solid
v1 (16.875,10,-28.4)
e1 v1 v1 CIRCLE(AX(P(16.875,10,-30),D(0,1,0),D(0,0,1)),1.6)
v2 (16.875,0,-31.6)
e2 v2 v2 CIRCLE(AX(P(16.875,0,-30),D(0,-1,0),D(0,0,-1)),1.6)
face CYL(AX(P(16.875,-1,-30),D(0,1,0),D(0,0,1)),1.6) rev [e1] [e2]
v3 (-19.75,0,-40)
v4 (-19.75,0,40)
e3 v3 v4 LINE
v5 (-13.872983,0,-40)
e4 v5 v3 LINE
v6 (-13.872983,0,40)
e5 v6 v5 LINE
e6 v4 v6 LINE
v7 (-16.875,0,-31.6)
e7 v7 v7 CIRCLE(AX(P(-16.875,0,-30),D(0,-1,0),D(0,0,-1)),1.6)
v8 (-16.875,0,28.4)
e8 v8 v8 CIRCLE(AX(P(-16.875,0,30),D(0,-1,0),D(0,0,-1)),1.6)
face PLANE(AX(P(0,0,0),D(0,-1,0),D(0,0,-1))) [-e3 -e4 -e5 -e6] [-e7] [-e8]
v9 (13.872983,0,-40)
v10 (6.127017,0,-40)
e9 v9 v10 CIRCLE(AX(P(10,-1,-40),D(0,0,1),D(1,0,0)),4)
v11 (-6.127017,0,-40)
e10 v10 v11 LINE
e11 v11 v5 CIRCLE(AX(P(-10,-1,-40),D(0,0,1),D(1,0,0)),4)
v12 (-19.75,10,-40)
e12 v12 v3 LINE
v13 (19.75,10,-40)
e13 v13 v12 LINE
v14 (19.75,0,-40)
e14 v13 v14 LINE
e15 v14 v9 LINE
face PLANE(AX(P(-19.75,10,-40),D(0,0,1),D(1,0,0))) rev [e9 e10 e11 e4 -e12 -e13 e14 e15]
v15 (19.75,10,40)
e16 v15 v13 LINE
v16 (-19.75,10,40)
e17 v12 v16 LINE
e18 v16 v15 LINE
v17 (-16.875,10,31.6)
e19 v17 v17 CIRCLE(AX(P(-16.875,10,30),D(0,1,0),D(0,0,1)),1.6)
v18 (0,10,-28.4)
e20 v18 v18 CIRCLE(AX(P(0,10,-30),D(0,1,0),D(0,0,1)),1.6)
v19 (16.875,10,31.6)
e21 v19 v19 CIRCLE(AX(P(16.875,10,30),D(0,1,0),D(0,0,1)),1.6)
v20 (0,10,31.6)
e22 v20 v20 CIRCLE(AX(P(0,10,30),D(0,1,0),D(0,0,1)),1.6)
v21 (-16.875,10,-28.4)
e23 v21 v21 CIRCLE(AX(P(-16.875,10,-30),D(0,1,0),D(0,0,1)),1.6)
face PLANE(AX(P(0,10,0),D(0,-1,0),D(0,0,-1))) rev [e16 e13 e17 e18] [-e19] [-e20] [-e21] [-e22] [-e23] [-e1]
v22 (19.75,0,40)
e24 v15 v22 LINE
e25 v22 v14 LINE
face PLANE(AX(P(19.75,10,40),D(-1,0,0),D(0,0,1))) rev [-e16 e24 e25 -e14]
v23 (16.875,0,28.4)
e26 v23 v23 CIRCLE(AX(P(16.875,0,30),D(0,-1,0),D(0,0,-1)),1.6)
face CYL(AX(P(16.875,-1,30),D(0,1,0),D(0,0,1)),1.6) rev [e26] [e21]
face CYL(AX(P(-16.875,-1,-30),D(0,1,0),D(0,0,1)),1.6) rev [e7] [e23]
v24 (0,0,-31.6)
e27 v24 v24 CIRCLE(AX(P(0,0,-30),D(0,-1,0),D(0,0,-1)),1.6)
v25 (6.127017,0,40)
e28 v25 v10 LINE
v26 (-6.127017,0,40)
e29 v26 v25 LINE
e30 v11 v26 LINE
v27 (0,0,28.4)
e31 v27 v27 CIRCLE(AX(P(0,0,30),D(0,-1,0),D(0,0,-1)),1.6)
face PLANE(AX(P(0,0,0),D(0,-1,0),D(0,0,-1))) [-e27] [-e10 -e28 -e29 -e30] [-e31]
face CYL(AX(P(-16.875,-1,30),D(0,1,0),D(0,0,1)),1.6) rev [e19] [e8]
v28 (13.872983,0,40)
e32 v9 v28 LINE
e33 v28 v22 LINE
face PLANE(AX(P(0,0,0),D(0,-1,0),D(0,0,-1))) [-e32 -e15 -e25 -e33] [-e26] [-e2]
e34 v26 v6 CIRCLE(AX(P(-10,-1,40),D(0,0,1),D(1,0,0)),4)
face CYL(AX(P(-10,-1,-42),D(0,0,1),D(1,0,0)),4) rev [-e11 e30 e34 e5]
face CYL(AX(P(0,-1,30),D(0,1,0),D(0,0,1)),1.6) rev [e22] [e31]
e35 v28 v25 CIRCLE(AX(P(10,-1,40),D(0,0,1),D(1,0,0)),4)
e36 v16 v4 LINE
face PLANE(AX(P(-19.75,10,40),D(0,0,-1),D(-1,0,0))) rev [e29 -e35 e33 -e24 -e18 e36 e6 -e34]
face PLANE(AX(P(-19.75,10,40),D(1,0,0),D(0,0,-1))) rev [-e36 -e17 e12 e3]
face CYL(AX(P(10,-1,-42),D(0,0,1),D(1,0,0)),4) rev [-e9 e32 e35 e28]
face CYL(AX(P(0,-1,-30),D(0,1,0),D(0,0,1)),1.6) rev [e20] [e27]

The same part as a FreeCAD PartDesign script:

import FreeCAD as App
import Part
import Sketcher
from FreeCAD import Vector

doc = App.newDocument("Part")
params = doc.addObject("Spreadsheet::Sheet", "Params")
for row, (alias, value) in enumerate([
    ("sketch1_height", "80 mm"),
    ("sketch1_width", "39.5 mm"),
    ("pad1_length", "10 mm"),
    ("sketch2_diameter", "8 mm"),
    ("pocket1_length", "82 mm"),
    ("sketch3_diameter", "3.2 mm"),
    ("pocket2_length", "11 mm"),
], start=1):
    params.set(f"A{row}", alias)
    params.set(f"B{row}", "=" + value)
    params.setAlias(f"B{row}", alias)

body = doc.addObject("PartDesign::Body", "Body")

# Sketch on XZ plane
sketch1 = body.newObject("Sketcher::SketchObject", "Sketch")
sketch1.AttachmentSupport = (doc.getObject("XZ_Plane"), [""])
sketch1.MapMode = "FlatFace"
sketch1.addGeometry(Part.LineSegment(Vector(-20, -40, 0), Vector(-20, 40, 0)), False)
sketch1.addGeometry(Part.LineSegment(Vector(-20, 40, 0), Vector(20, 40, 0)), False)
sketch1.addGeometry(Part.LineSegment(Vector(20, 40, 0), Vector(20, -40, 0)), False)
sketch1.addGeometry(Part.LineSegment(Vector(20, -40, 0), Vector(-20, -40, 0)), False)
sketch1.addConstraint(Sketcher.Constraint("Coincident", 0, 2, 1, 1))
sketch1.addConstraint(Sketcher.Constraint("Coincident", 1, 2, 2, 1))
sketch1.addConstraint(Sketcher.Constraint("Coincident", 2, 2, 3, 1))
sketch1.addConstraint(Sketcher.Constraint("Coincident", 3, 2, 0, 1))
sketch1.addConstraint(Sketcher.Constraint("Vertical", 0))
sketch1.addConstraint(Sketcher.Constraint("Horizontal", 1))
sketch1.addConstraint(Sketcher.Constraint("Vertical", 2))
sketch1.addConstraint(Sketcher.Constraint("Horizontal", 3))
sketch1.addConstraint(Sketcher.Constraint("Symmetric", 0, 2, 2, 2, -1, 1))
sketch1.addConstraint(Sketcher.Constraint("DistanceY", 0, 1, 0, 2, 80.0))
sketch1.addConstraint(Sketcher.Constraint("DistanceX", 1, 1, 1, 2, 39.5))
sketch1.setExpression("Constraints[9]", "Params.sketch1_height")
sketch1.setExpression("Constraints[10]", "Params.sketch1_width")
pad1 = body.newObject("PartDesign::Pad", "Pad")
pad1.Profile = sketch1
pad1.setExpression("Length", "Params.pad1_length")
pad1.Reversed = True

# Sketch on XY plane
sketch2 = body.newObject("Sketcher::SketchObject", "Sketch001")
sketch2.AttachmentSupport = (doc.getObject("XY_Plane"), [""])
sketch2.MapMode = "FlatFace"
sketch2.AttachmentOffset = App.Placement(Vector(0, 0, 40), App.Rotation())
sketch2.addGeometry(Part.Circle(Vector(-10, -1, 0), Vector(0, 0, 1), 4), False)
sketch2.addGeometry(Part.Circle(Vector(10, -1, 0), Vector(0, 0, 1), 4), False)
sketch2.addConstraint(Sketcher.Constraint("Equal", 0, 1))
sketch2.addConstraint(Sketcher.Constraint("Symmetric", 0, 3, 1, 3, -2))
sketch2.addConstraint(Sketcher.Constraint("Diameter", 0, 8.0))
sketch2.addConstraint(Sketcher.Constraint("DistanceX", 0, 3, -1, 1, 10.0))
sketch2.addConstraint(Sketcher.Constraint("DistanceY", 0, 3, -1, 1, 1.0))
sketch2.setExpression("Constraints[2]", "Params.sketch2_diameter")
pocket1 = body.newObject("PartDesign::Pocket", "Pocket")
pocket1.Profile = sketch2
pocket1.setExpression("Length", "Params.pocket1_length")

# Sketch on XZ plane
sketch3 = body.newObject("Sketcher::SketchObject", "Sketch002")
sketch3.AttachmentSupport = (doc.getObject("XZ_Plane"), [""])
sketch3.MapMode = "FlatFace"
sketch3.AttachmentOffset = App.Placement(Vector(0, 0, -10), App.Rotation())
sketch3.addGeometry(Part.Circle(Vector(-16.9, -30, 0), Vector(0, 0, 1), 1.6), False)
sketch3.addGeometry(Part.Circle(Vector(0, -30, 0), Vector(0, 0, 1), 1.6), False)
sketch3.addGeometry(Part.Circle(Vector(16.9, -30, 0), Vector(0, 0, 1), 1.6), False)
sketch3.addGeometry(Part.Circle(Vector(-16.9, 30, 0), Vector(0, 0, 1), 1.6), False)
sketch3.addGeometry(Part.Circle(Vector(0, 30, 0), Vector(0, 0, 1), 1.6), False)
sketch3.addGeometry(Part.Circle(Vector(16.9, 30, 0), Vector(0, 0, 1), 1.6), False)
sketch3.addConstraint(Sketcher.Constraint("Equal", 0, 1))
sketch3.addConstraint(Sketcher.Constraint("Equal", 1, 2))
sketch3.addConstraint(Sketcher.Constraint("Equal", 2, 3))
sketch3.addConstraint(Sketcher.Constraint("Equal", 3, 4))
sketch3.addConstraint(Sketcher.Constraint("Equal", 4, 5))
sketch3.addConstraint(Sketcher.Constraint("Symmetric", 2, 3, 3, 3, -1, 1))
sketch3.addConstraint(Sketcher.Constraint("Symmetric", 1, 3, 4, 3, -1, 1))
sketch3.addConstraint(Sketcher.Constraint("Symmetric", 0, 3, 5, 3, -1, 1))
sketch3.addConstraint(Sketcher.Constraint("Symmetric", 0, 3, 2, 3, -2))
sketch3.addConstraint(Sketcher.Constraint("PointOnObject", 1, 3, -2))
sketch3.addConstraint(Sketcher.Constraint("Horizontal", 0, 3, 1, 3))
sketch3.addConstraint(Sketcher.Constraint("Diameter", 0, 3.2))
sketch3.addConstraint(Sketcher.Constraint("DistanceY", 0, 3, -1, 1, 30.0))
sketch3.addConstraint(Sketcher.Constraint("DistanceX", 0, 3, 2, 3, 33.75))
sketch3.setExpression("Constraints[11]", "Params.sketch3_diameter")
pocket2 = body.newObject("PartDesign::Pocket", "Pocket001")
pocket2.Profile = sketch3
pocket2.setExpression("Length", "Params.pocket2_length")
pocket2.Reversed = True

doc.recompute()
